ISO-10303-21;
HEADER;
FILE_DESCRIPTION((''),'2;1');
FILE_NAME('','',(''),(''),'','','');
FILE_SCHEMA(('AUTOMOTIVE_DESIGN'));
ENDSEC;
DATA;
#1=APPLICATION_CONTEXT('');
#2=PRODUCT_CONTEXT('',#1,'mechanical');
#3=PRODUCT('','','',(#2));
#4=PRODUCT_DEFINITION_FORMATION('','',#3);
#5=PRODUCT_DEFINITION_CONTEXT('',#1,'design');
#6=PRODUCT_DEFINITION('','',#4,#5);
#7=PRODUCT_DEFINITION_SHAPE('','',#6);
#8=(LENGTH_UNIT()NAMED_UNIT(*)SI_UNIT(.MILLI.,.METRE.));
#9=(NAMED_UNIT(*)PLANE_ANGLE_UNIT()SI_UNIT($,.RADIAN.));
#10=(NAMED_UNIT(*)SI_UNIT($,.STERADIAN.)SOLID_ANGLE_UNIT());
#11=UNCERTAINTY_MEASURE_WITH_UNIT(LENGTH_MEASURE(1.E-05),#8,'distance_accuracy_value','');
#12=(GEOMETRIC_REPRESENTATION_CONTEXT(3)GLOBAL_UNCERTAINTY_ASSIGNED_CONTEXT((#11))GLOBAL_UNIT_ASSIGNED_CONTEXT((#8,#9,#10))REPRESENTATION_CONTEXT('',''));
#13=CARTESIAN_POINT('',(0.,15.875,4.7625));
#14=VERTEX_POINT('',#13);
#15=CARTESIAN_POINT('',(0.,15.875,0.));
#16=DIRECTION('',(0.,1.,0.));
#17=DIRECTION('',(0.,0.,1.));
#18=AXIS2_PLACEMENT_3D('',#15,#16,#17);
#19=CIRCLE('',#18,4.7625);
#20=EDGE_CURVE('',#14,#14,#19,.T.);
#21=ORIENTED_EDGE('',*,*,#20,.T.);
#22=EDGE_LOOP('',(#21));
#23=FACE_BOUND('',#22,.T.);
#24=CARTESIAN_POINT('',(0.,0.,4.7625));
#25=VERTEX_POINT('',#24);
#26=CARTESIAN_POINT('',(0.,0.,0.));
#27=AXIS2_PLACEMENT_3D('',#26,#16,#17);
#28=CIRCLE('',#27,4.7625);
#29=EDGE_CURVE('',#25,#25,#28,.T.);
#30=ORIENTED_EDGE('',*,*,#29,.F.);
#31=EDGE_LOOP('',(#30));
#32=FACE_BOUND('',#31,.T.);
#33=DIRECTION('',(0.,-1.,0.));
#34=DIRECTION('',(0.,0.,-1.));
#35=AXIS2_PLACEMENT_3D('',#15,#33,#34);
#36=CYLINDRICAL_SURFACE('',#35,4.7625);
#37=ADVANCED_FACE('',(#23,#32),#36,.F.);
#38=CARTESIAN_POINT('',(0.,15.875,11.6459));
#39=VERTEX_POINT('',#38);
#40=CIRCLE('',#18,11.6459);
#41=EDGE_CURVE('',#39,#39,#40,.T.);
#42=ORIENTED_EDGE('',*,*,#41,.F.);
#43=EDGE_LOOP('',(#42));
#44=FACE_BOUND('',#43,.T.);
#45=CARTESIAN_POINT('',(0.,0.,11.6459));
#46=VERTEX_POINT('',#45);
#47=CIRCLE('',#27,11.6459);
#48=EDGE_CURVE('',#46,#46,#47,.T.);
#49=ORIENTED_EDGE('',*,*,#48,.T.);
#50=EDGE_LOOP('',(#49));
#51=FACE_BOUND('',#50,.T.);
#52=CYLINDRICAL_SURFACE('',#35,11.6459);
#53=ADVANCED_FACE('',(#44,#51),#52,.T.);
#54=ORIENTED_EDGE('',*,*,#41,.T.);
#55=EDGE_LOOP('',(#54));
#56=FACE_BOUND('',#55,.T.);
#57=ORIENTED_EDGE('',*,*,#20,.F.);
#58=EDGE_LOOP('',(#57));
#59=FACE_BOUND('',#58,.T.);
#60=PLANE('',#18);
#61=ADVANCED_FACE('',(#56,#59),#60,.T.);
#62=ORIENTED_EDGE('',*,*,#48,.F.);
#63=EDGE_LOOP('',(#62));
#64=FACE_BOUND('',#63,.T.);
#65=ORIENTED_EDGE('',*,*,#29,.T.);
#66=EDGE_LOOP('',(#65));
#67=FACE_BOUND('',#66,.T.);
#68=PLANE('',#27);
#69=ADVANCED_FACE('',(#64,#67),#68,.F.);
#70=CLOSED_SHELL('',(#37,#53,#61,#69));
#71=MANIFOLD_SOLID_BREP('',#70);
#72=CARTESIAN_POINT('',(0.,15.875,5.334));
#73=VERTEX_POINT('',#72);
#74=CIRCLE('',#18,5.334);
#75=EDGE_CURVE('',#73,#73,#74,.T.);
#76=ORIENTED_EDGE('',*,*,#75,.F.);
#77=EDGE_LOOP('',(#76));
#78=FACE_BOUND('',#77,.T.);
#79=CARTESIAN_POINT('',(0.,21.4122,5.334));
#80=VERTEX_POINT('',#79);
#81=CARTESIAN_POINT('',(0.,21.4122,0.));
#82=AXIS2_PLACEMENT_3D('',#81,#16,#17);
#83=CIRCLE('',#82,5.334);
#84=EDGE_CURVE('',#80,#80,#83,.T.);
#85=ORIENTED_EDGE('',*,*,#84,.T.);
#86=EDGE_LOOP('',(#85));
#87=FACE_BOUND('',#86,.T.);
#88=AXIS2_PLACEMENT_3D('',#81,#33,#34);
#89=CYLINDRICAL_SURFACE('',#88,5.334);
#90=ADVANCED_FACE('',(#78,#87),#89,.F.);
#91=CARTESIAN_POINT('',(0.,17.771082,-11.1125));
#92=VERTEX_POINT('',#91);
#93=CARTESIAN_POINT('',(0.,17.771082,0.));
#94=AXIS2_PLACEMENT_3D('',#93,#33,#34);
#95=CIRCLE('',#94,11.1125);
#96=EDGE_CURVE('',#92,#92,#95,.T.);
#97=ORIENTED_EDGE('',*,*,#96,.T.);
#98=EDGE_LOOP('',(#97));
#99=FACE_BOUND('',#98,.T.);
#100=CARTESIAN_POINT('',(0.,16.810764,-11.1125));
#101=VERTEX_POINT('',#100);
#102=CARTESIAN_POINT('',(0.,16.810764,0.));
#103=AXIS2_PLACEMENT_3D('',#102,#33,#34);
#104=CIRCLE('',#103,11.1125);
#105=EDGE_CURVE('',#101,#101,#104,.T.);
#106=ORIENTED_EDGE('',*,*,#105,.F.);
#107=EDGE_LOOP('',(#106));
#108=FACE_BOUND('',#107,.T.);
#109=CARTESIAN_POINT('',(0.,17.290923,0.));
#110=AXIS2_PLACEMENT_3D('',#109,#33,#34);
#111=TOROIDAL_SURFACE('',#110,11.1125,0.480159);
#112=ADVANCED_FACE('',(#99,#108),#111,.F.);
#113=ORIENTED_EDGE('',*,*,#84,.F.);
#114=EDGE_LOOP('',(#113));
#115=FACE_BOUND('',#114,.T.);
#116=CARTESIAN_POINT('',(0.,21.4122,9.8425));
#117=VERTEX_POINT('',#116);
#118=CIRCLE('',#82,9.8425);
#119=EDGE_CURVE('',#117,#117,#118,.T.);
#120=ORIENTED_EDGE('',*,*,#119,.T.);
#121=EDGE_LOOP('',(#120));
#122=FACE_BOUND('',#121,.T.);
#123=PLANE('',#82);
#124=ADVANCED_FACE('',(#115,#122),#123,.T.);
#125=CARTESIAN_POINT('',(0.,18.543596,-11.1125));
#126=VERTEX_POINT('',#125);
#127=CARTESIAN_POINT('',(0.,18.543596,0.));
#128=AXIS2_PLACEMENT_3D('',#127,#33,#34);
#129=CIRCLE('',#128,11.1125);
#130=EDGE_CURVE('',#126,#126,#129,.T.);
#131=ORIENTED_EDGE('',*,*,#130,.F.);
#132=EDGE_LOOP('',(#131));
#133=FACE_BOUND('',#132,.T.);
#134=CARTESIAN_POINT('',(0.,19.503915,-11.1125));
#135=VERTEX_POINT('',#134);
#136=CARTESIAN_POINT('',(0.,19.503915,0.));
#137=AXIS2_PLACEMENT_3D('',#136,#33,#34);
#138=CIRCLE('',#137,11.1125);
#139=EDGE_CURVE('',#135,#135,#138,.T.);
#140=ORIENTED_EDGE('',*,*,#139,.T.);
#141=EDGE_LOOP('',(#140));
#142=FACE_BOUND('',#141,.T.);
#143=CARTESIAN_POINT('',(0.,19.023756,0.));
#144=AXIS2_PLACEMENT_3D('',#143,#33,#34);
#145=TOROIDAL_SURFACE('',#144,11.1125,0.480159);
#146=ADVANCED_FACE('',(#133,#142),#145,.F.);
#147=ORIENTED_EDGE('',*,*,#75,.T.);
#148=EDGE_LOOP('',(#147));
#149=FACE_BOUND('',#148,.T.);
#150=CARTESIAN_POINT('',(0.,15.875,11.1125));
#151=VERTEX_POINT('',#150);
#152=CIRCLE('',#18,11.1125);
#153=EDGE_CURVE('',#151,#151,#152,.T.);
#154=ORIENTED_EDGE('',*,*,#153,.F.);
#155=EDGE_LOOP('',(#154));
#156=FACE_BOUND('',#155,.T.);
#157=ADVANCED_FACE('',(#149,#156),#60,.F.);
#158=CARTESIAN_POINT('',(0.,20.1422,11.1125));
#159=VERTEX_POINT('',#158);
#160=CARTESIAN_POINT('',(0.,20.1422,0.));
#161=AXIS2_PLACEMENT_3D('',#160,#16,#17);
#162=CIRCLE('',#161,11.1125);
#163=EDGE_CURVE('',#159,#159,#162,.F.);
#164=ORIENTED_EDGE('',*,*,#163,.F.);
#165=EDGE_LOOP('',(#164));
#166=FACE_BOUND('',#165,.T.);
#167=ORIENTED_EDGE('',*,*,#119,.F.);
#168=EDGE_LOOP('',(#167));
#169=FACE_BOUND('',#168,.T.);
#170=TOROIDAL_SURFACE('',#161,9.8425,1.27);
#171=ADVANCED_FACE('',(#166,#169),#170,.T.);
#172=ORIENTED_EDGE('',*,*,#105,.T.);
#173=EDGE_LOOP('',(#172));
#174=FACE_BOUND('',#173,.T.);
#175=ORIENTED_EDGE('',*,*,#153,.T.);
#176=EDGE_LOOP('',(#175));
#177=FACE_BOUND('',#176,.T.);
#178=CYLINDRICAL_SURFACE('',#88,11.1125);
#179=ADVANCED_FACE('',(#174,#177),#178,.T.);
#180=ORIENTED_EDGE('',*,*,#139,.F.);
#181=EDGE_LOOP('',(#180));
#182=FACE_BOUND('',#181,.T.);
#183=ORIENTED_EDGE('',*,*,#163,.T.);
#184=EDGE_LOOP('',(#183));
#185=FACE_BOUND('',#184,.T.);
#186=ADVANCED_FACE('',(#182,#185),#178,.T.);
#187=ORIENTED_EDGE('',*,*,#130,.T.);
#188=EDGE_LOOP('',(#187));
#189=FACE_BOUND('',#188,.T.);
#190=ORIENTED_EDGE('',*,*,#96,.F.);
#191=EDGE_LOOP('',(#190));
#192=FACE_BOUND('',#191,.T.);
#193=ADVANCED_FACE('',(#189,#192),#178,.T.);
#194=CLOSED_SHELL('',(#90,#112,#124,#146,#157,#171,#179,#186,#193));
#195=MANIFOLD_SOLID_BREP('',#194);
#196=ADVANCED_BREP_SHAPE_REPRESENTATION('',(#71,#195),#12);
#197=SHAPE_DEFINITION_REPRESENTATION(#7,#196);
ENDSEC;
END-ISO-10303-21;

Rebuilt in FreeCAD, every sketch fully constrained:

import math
import FreeCAD as App
import Part
import Sketcher
from FreeCAD import Vector
Q = App.Units.Quantity


def edges_at(feature, points):
    """Names of the edges that pass closest to the given points."""
    edges = feature.Shape.Edges
    near = lambda p: min(range(len(edges)), key=lambda i: edges[i].distToShape(Part.Vertex(*p))[0])
    return sorted({f"Edge{near(p) + 1}" for p in points})

doc = App.newDocument("Part")
body = doc.addObject("PartDesign::Body", "Body")

# Sketch on XZ plane
sketch1 = doc.addObject("Sketcher::SketchObject", "Sketch")
body.addObject(sketch1)
sketch1.AttachmentSupport = (doc.XZ_Plane, [""])
sketch1.MapMode = "FlatFace"
sketch1.addGeometry([
    Part.Circle(Vector(0, 0, 0), Vector(0, 0, 1), 11.6),
    Part.Circle(Vector(0, 0, 0), Vector(0, 0, 1), 4.8),
], False)
sketch1.addConstraint([
    Sketcher.Constraint("Coincident", 0, 3, -1, 1),
    Sketcher.Constraint("Coincident", 1, 3, -1, 1),
    Sketcher.Constraint("Diameter", 0, Q("0.917 in")),
    Sketcher.Constraint("Diameter", 1, Q("0.375 in")),
])
pad1 = doc.addObject("PartDesign::Pad", "Pad")
body.addObject(pad1)
pad1.Profile = sketch1
pad1.Length = Q("0.625 in")
pad1.Reversed = True
body2 = doc.addObject("PartDesign::Body", "Body001")

# Sketch on XZ plane
sketch2 = doc.addObject("Sketcher::SketchObject", "Sketch001")
body2.addObject(sketch2)
sketch2.AttachmentSupport = (doc.getObject("XZ_Plane001"), [""])
sketch2.MapMode = "FlatFace"
sketch2.AttachmentOffset = App.Placement(Vector(0, 0, -0.625 * 25.4), App.Rotation())
sketch2.addGeometry([
    Part.Circle(Vector(0, 0, 0), Vector(0, 0, 1), 11),
    Part.Circle(Vector(0, 0, 0), Vector(0, 0, 1), 5),
], False)
sketch2.addConstraint([
    Sketcher.Constraint("Coincident", 0, 3, -1, 1),
    Sketcher.Constraint("Coincident", 1, 3, -1, 1),
    Sketcher.Constraint("Diameter", 1, Q("0.42 in")),
    Sketcher.Constraint("Diameter", 0, Q("0.875 in")),
])
pad2 = doc.addObject("PartDesign::Pad", "Pad001")
body2.addObject(pad2)
pad2.Profile = sketch2
pad2.Length = Q("0.218 in")
pad2.Reversed = True
doc.recompute()

fillet = doc.addObject("PartDesign::Fillet", "Fillet")
body2.addObject(fillet)
fillet.Base = (pad2, edges_at(pad2, [(0, 21.412, -11.113)]))
fillet.Radius = Q("0.05 in")

# Sketch on XY plane
sketch3 = doc.addObject("Sketcher::SketchObject", "Sketch002")
body2.addObject(sketch3)
sketch3.AttachmentSupport = (doc.getObject("XY_Plane001"), [""])
sketch3.MapMode = "FlatFace"
sketch3.addGeometry([
    Part.LineSegment(Vector(-11.11, 19.5, 0), Vector(-11.11, 20.14, 0)),  # 0
    Part.LineSegment(Vector(-11.11, 20.14, 0), Vector(-12.69, 20.14, 0)),  # 1
    Part.LineSegment(Vector(-12.69, 20.14, 0), Vector(-12.69, 15.88, 0)),  # 2
    Part.LineSegment(Vector(-12.69, 15.88, 0), Vector(-11.11, 15.88, 0)),  # 3
    Part.LineSegment(Vector(-11.11, 15.88, 0), Vector(-11.11, 16.81, 0)),  # 4
    Part.ArcOfCircle(Part.Circle(Vector(-11.11, 17.29, 0), Vector(0, 0, 1), 0.48), math.radians(-90), math.radians(90)),  # 5
    Part.LineSegment(Vector(-11.11, 17.77, 0), Vector(-11.11, 18.54, 0)),  # 6
    Part.ArcOfCircle(Part.Circle(Vector(-11.11, 19.02, 0), Vector(0, 0, 1), 0.48), math.radians(-90), math.radians(90)),  # 7
], False)
sketch3.addConstraint([
    Sketcher.Constraint("Coincident", 0, 2, 1, 1),
    Sketcher.Constraint("Coincident", 1, 2, 2, 1),
    Sketcher.Constraint("Coincident", 2, 2, 3, 1),
    Sketcher.Constraint("Coincident", 3, 2, 4, 1),
    Sketcher.Constraint("Coincident", 4, 2, 5, 1),
    Sketcher.Constraint("Coincident", 5, 2, 6, 1),
    Sketcher.Constraint("Coincident", 6, 2, 7, 1),
    Sketcher.Constraint("Coincident", 7, 2, 0, 1),
    Sketcher.Constraint("Vertical", 0),
    Sketcher.Constraint("Horizontal", 1),
    Sketcher.Constraint("Vertical", 2),
    Sketcher.Constraint("Horizontal", 3),
    Sketcher.Constraint("Vertical", 4),
    Sketcher.Constraint("Vertical", 6),
    Sketcher.Constraint("Equal", 5, 7),
    Sketcher.Constraint("Vertical", 5, 3, 7, 3),
    Sketcher.Constraint("Vertical", 7, 3, 0, 2),
    Sketcher.Constraint("Vertical", 0, 2, 3, 2),
    Sketcher.Constraint("Vertical", 4, 2, 5, 2),
    Sketcher.Constraint("DistanceY", 2, 2, 2, 1, Q("0.168 in")),
    Sketcher.Constraint("DistanceX", 5, 3, -1, 1, Q("0.4375 in")),
    Sketcher.Constraint("DistanceY", -1, 1, 0, 2, Q("0.793 in")),
    Sketcher.Constraint("Radius", 5, Q("0.480159 mm")),
    Sketcher.Constraint("DistanceX", 1, 2, 1, 1, Q("1.582488 mm")),
    Sketcher.Constraint("DistanceY", 0, 1, 0, 2, Q("0.638285 mm")),
    Sketcher.Constraint("DistanceY", 4, 1, 4, 2, Q("0.935764 mm")),
])
groove = doc.addObject("PartDesign::Groove", "Groove")
body2.addObject(groove)
groove.Profile = sketch3
groove.ReferenceAxis = (sketch3, ["V_Axis"])
groove.Angle = 360

doc.recompute()
